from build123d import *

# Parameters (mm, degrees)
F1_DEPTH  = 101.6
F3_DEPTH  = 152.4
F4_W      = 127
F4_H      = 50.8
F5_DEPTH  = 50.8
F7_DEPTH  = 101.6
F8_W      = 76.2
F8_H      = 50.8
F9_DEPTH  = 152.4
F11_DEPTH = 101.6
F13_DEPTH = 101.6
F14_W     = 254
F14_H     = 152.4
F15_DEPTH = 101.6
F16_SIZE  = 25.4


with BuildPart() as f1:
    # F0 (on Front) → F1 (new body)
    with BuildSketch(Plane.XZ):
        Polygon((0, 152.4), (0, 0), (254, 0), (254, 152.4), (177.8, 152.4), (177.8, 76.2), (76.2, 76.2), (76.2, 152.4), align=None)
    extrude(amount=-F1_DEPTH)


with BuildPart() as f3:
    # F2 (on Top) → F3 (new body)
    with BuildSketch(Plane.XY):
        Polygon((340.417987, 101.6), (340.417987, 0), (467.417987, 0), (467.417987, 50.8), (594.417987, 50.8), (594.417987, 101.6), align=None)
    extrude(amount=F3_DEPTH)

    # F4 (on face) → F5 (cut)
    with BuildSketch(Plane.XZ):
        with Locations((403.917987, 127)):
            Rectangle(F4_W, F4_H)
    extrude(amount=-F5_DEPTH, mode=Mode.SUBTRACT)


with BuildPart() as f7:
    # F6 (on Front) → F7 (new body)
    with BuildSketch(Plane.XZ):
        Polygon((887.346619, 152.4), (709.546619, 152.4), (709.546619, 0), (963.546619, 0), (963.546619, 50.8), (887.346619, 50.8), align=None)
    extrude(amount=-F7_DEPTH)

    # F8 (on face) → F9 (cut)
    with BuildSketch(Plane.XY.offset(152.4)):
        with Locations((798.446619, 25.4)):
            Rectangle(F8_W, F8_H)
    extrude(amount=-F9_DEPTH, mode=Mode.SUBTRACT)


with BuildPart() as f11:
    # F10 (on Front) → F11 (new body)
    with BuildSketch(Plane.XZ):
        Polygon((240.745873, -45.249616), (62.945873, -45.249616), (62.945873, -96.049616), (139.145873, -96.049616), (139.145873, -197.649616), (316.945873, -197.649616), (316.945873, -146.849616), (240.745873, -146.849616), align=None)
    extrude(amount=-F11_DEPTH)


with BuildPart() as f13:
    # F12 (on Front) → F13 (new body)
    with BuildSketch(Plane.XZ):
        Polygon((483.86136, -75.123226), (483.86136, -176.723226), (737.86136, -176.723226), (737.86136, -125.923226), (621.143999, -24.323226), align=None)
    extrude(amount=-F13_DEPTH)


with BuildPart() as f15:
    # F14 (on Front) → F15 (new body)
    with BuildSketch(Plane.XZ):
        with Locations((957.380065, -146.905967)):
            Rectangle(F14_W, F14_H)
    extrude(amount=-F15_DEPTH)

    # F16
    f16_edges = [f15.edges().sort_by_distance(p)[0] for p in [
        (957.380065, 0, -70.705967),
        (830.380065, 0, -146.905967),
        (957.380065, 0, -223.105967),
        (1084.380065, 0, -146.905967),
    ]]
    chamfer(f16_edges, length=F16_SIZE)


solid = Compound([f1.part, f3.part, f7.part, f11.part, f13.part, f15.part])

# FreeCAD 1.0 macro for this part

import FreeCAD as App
import Part
import Sketcher

V = App.Vector
Q = App.Units.Quantity


def edges_at(feature, points):
    """Names of the edges that pass closest to the given points."""
    edges = feature.Shape.Edges
    near = lambda p: min(range(len(edges)), key=lambda i: edges[i].distToShape(Part.Vertex(*p))[0])
    return sorted({f"Edge{near(p) + 1}" for p in points})

doc = App.newDocument("Part")
body = doc.addObject("PartDesign::Body", "Body")

sketch1 = body.newObject("Sketcher::SketchObject", "Sketch")
sketch1.AttachmentSupport = (doc.getObject("XZ_Plane"), [""])
sketch1.MapMode = "FlatFace"
sketch1.addGeometry([
    Part.LineSegment(V(0, 152.4, 0), V(0, 0, 0)),
    Part.LineSegment(V(0, 0, 0), V(254, 0, 0)),
    Part.LineSegment(V(254, 0, 0), V(254, 152.4, 0)),
    Part.LineSegment(V(254, 152.4, 0), V(177.8, 152.4, 0)),
    Part.LineSegment(V(177.8, 152.4, 0), V(177.8, 76.2, 0)),
    Part.LineSegment(V(177.8, 76.2, 0), V(76.2, 76.2, 0)),
    Part.LineSegment(V(76.2, 76.2, 0), V(76.2, 152.4, 0)),
    Part.LineSegment(V(76.2, 152.4, 0), V(0, 152.4, 0)),
], False)
sketch1.addConstraint([
    Sketcher.Constraint("Coincident", 0, 2, 1, 1),
    Sketcher.Constraint("Coincident", 1, 2, 2, 1),
    Sketcher.Constraint("Coincident", 2, 2, 3, 1),
    Sketcher.Constraint("Coincident", 3, 2, 4, 1),
    Sketcher.Constraint("Coincident", 4, 2, 5, 1),
    Sketcher.Constraint("Coincident", 5, 2, 6, 1),
    Sketcher.Constraint("Coincident", 6, 2, 7, 1),
    Sketcher.Constraint("Coincident", 7, 2, 0, 1),
    Sketcher.Constraint("Vertical", 0),
    Sketcher.Constraint("Horizontal", 1),
    Sketcher.Constraint("Vertical", 2),
    Sketcher.Constraint("Horizontal", 3),
    Sketcher.Constraint("Vertical", 4),
    Sketcher.Constraint("Horizontal", 5),
    Sketcher.Constraint("Vertical", 6),
    Sketcher.Constraint("Horizontal", 7),
    Sketcher.Constraint("Coincident", 0, 2, -1, 1),
    Sketcher.Constraint("Horizontal", 3, 2, 6, 2),
    Sketcher.Constraint("Equal", 3, 7),
    Sketcher.Constraint("Equal", 7, 4),
    Sketcher.Constraint("DistanceX", 1, 1, 1, 2, Q("10 in")),
    Sketcher.Constraint("DistanceX", 3, 2, 3, 1, Q("3 in")),
    Sketcher.Constraint("DistanceY", 0, 2, 0, 1, Q("6 in")),
])
pad1 = body.newObject("PartDesign::Pad", "Pad")
pad1.Profile = sketch1
pad1.Length = Q("4 in")
pad1.Reversed = True
body2 = doc.addObject("PartDesign::Body", "Body001")

sketch2 = body2.newObject("Sketcher::SketchObject", "Sketch001")
sketch2.AttachmentSupport = (doc.getObject("XY_Plane001"), [""])
sketch2.MapMode = "FlatFace"
sketch2.addGeometry([
    Part.LineSegment(V(340.417987, 101.6, 0), V(340.417987, 0, 0)),
    Part.LineSegment(V(340.417987, 0, 0), V(467.417987, 0, 0)),
    Part.LineSegment(V(467.417987, 0, 0), V(467.417987, 50.8, 0)),
    Part.LineSegment(V(467.417987, 50.8, 0), V(594.417987, 50.8, 0)),
    Part.LineSegment(V(594.417987, 50.8, 0), V(594.417987, 101.6, 0)),
    Part.LineSegment(V(594.417987, 101.6, 0), V(340.417987, 101.6, 0)),
], False)
sketch2.addConstraint([
    Sketcher.Constraint("Coincident", 0, 2, 1, 1),
    Sketcher.Constraint("Coincident", 1, 2, 2, 1),
    Sketcher.Constraint("Coincident", 2, 2, 3, 1),
    Sketcher.Constraint("Coincident", 3, 2, 4, 1),
    Sketcher.Constraint("Coincident", 4, 2, 5, 1),
    Sketcher.Constraint("Coincident", 5, 2, 0, 1),
    Sketcher.Constraint("Vertical", 0),
    Sketcher.Constraint("Horizontal", 1),
    Sketcher.Constraint("Vertical", 2),
    Sketcher.Constraint("Horizontal", 3),
    Sketcher.Constraint("Vertical", 4),
    Sketcher.Constraint("Horizontal", 5),
    Sketcher.Constraint("PointOnObject", 0, 2, -1),
    Sketcher.Constraint("Equal", 1, 3),
    Sketcher.Constraint("Equal", 2, 4),
    Sketcher.Constraint("DistanceX", 1, 1, 1, 2, Q("5 in")),
    Sketcher.Constraint("DistanceY", 0, 2, 0, 1, Q("4 in")),
    Sketcher.Constraint("DistanceX", -1, 1, 0, 2, Q("340.417987 mm")),
])
pad2 = body2.newObject("PartDesign::Pad", "Pad001")
pad2.Profile = sketch2
pad2.Length = Q("6 in")

sketch3 = body2.newObject("Sketcher::SketchObject", "Sketch002")
sketch3.AttachmentSupport = (doc.getObject("XZ_Plane001"), [""])
sketch3.MapMode = "FlatFace"
sketch3.addGeometry([
    Part.LineSegment(V(340.417987, 152.4, 0), V(340.417987, 101.6, 0)),
    Part.LineSegment(V(340.417987, 101.6, 0), V(467.417987, 101.6, 0)),
    Part.LineSegment(V(467.417987, 101.6, 0), V(467.417987, 152.4, 0)),
    Part.LineSegment(V(467.417987, 152.4, 0), V(340.417987, 152.4, 0)),
], False)
sketch3.addConstraint([
    Sketcher.Constraint("Coincident", 0, 2, 1, 1),
    Sketcher.Constraint("Coincident", 1, 2, 2, 1),
    Sketcher.Constraint("Coincident", 2, 2, 3, 1),
    Sketcher.Constraint("Coincident", 3, 2, 0, 1),
    Sketcher.Constraint("Vertical", 0),
    Sketcher.Constraint("Horizontal", 1),
    Sketcher.Constraint("Vertical", 2),
    Sketcher.Constraint("Horizontal", 3),
    Sketcher.Constraint("DistanceX", 1, 1, 1, 2, Q("5 in")),
    Sketcher.Constraint("DistanceY", 0, 2, 0, 1, Q("2 in")),
    Sketcher.Constraint("DistanceY", -1, 1, 0, 2, Q("4 in")),
    Sketcher.Constraint("DistanceX", -1, 1, 0, 2, Q("340.417987 mm")),
])
pocket1 = body2.newObject("PartDesign::Pocket", "Pocket")
pocket1.Profile = sketch3
pocket1.Length = Q("2 in")
body3 = doc.addObject("PartDesign::Body", "Body002")

sketch4 = body3.newObject("Sketcher::SketchObject", "Sketch003")
sketch4.AttachmentSupport = (doc.getObject("XZ_Plane002"), [""])
sketch4.MapMode = "FlatFace"
sketch4.addGeometry([
    Part.LineSegment(V(887.346619, 152.4, 0), V(709.546619, 152.4, 0)),
    Part.LineSegment(V(709.546619, 152.4, 0), V(709.546619, 0, 0)),
    Part.LineSegment(V(709.546619, 0, 0), V(963.546619, 0, 0)),
    Part.LineSegment(V(963.546619, 0, 0), V(963.546619, 50.8, 0)),
    Part.LineSegment(V(963.546619, 50.8, 0), V(887.346619, 50.8, 0)),
    Part.LineSegment(V(887.346619, 50.8, 0), V(887.346619, 152.4, 0)),
], False)
sketch4.addConstraint([
    Sketcher.Constraint("Coincident", 0, 2, 1, 1),
    Sketcher.Constraint("Coincident", 1, 2, 2, 1),
    Sketcher.Constraint("Coincident", 2, 2, 3, 1),
    Sketcher.Constraint("Coincident", 3, 2, 4, 1),
    Sketcher.Constraint("Coincident", 4, 2, 5, 1),
    Sketcher.Constraint("Coincident", 5, 2, 0, 1),
    Sketcher.Constraint("Horizontal", 0),
    Sketcher.Constraint("Vertical", 1),
    Sketcher.Constraint("Horizontal", 2),
    Sketcher.Constraint("Vertical", 3),
    Sketcher.Constraint("Horizontal", 4),
    Sketcher.Constraint("Vertical", 5),
    Sketcher.Constraint("PointOnObject", 1, 2, -1),
    Sketcher.Constraint("DistanceX", 0, 2, 0, 1, Q("7 in")),
    Sketcher.Constraint("DistanceX", 2, 1, 2, 2, Q("10 in")),
    Sketcher.Constraint("DistanceY", 1, 2, 1, 1, Q("6 in")),
    Sketcher.Constraint("DistanceY", 3, 1, 3, 2, Q("2 in")),
    Sketcher.Constraint("DistanceX", -1, 1, 0, 2, Q("709.546619 mm")),
])
pad3 = body3.newObject("PartDesign::Pad", "Pad002")
pad3.Profile = sketch4
pad3.Length = Q("4 in")
pad3.Reversed = True

sketch5 = body3.newObject("Sketcher::SketchObject", "Sketch004")
sketch5.AttachmentSupport = (doc.getObject("XY_Plane002"), [""])
sketch5.MapMode = "FlatFace"
sketch5.AttachmentOffset = App.Placement(V(0, 0, 6 * 25.4), App.Rotation())
sketch5.addGeometry([
    Part.LineSegment(V(760.346619, 50.8, 0), V(760.346619, 0, 0)),
    Part.LineSegment(V(760.346619, 0, 0), V(836.546619, 0, 0)),
    Part.LineSegment(V(836.546619, 0, 0), V(836.546619, 50.8, 0)),
    Part.LineSegment(V(836.546619, 50.8, 0), V(760.346619, 50.8, 0)),
], False)
sketch5.addConstraint([
    Sketcher.Constraint("Coincident", 0, 2, 1, 1),
    Sketcher.Constraint("Coincident", 1, 2, 2, 1),
    Sketcher.Constraint("Coincident", 2, 2, 3, 1),
    Sketcher.Constraint("Coincident", 3, 2, 0, 1),
    Sketcher.Constraint("Vertical", 0),
    Sketcher.Constraint("Horizontal", 1),
    Sketcher.Constraint("Vertical", 2),
    Sketcher.Constraint("Horizontal", 3),
    Sketcher.Constraint("PointOnObject", 0, 2, -1),
    Sketcher.Constraint("DistanceX", 1, 1, 1, 2, Q("3 in")),
    Sketcher.Constraint("DistanceY", 0, 2, 0, 1, Q("2 in")),
    Sketcher.Constraint("DistanceX", -1, 1, 0, 2, Q("760.346619 mm")),
])
pocket2 = body3.newObject("PartDesign::Pocket", "Pocket001")
pocket2.Profile = sketch5
pocket2.Length = Q("6 in")
body4 = doc.addObject("PartDesign::Body", "Body003")

sketch6 = body4.newObject("Sketcher::SketchObject", "Sketch005")
sketch6.AttachmentSupport = (doc.getObject("XZ_Plane003"), [""])
sketch6.MapMode = "FlatFace"
sketch6.addGeometry([
    Part.LineSegment(V(240.745873, -45.249616, 0), V(62.945873, -45.249616, 0)),
    Part.LineSegment(V(62.945873, -45.249616, 0), V(62.945873, -96.049616, 0)),
    Part.LineSegment(V(62.945873, -96.049616, 0), V(139.145873, -96.049616, 0)),
    Part.LineSegment(V(139.145873, -96.049616, 0), V(139.145873, -197.649616, 0)),
    Part.LineSegment(V(139.145873, -197.649616, 0), V(316.945873, -197.649616, 0)),
    Part.LineSegment(V(316.945873, -197.649616, 0), V(316.945873, -146.849616, 0)),
    Part.LineSegment(V(316.945873, -146.849616, 0), V(240.745873, -146.849616, 0)),
    Part.LineSegment(V(240.745873, -146.849616, 0), V(240.745873, -45.249616, 0)),
], False)
sketch6.addConstraint([
    Sketcher.Constraint("Coincident", 0, 2, 1, 1),
    Sketcher.Constraint("Coincident", 1, 2, 2, 1),
    Sketcher.Constraint("Coincident", 2, 2, 3, 1),
    Sketcher.Constraint("Coincident", 3, 2, 4, 1),
    Sketcher.Constraint("Coincident", 4, 2, 5, 1),
    Sketcher.Constraint("Coincident", 5, 2, 6, 1),
    Sketcher.Constraint("Coincident", 6, 2, 7, 1),
    Sketcher.Constraint("Coincident", 7, 2, 0, 1),
    Sketcher.Constraint("Horizontal", 0),
    Sketcher.Constraint("Vertical", 1),
    Sketcher.Constraint("Horizontal", 2),
    Sketcher.Constraint("Vertical", 3),
    Sketcher.Constraint("Horizontal", 4),
    Sketcher.Constraint("Vertical", 5),
    Sketcher.Constraint("Horizontal", 6),
    Sketcher.Constraint("Vertical", 7),
    Sketcher.Constraint("Equal", 0, 4),
    Sketcher.Constraint("Equal", 1, 5),
    Sketcher.Constraint("DistanceX", 0, 2, 0, 1, Q("7 in")),
    Sketcher.Constraint("DistanceX", 2, 1, 2, 2, Q("3 in")),
    Sketcher.Constraint("DistanceY", 1, 2, 1, 1, Q("2 in")),
    Sketcher.Constraint("DistanceY", 3, 2, 3, 1, Q("4 in")),
    Sketcher.Constraint("DistanceX", -1, 1, 0, 2, Q("62.945873 mm")),
    Sketcher.Constraint("DistanceY", 0, 2, -1, 1, Q("45.249616 mm")),
])
pad4 = body4.newObject("PartDesign::Pad", "Pad003")
pad4.Profile = sketch6
pad4.Length = Q("4 in")
pad4.Reversed = True
body5 = doc.addObject("PartDesign::Body", "Body004")

sketch7 = body5.newObject("Sketcher::SketchObject", "Sketch006")
sketch7.AttachmentSupport = (doc.getObject("XZ_Plane004"), [""])
sketch7.MapMode = "FlatFace"
sketch7.addGeometry([
    Part.LineSegment(V(483.86136, -75.123226, 0), V(483.86136, -176.723226, 0)),
    Part.LineSegment(V(483.86136, -176.723226, 0), V(737.86136, -176.723226, 0)),
    Part.LineSegment(V(737.86136, -176.723226, 0), V(737.86136, -125.923226, 0)),
    Part.LineSegment(V(737.86136, -125.923226, 0), V(621.143999, -24.323226, 0)),
    Part.LineSegment(V(621.143999, -24.323226, 0), V(483.86136, -75.123226, 0)),
], False)
sketch7.addConstraint([
    Sketcher.Constraint("Coincident", 0, 2, 1, 1),
    Sketcher.Constraint("Coincident", 1, 2, 2, 1),
    Sketcher.Constraint("Coincident", 2, 2, 3, 1),
    Sketcher.Constraint("Coincident", 3, 2, 4, 1),
    Sketcher.Constraint("Coincident", 4, 2, 0, 1),
    Sketcher.Constraint("Vertical", 0),
    Sketcher.Constraint("Horizontal", 1),
    Sketcher.Constraint("Vertical", 2),
    Sketcher.Constraint("DistanceX", 1, 1, 1, 2, Q("10 in")),
    Sketcher.Constraint("DistanceY", 0, 2, 0, 1, Q("4 in")),
    Sketcher.Constraint("DistanceY", 2, 1, 2, 2, Q("2 in")),
    Sketcher.Constraint("DistanceY", 2, 2, 3, 2, Q("4 in")),
    Sketcher.Constraint("Distance", 4, Q("5.763 in")),
    Sketcher.Constraint("DistanceX", -1, 1, 3, 2, Q("621.143999 mm")),
    Sketcher.Constraint("DistanceY", 0, 2, -1, 1, Q("176.723226 mm")),
])
pad5 = body5.newObject("PartDesign::Pad", "Pad004")
pad5.Profile = sketch7
pad5.Length = Q("4 in")
pad5.Reversed = True
body6 = doc.addObject("PartDesign::Body", "Body005")

sketch8 = body6.newObject("Sketcher::SketchObject", "Sketch007")
sketch8.AttachmentSupport = (doc.getObject("XZ_Plane005"), [""])
sketch8.MapMode = "FlatFace"
sketch8.addGeometry([
    Part.LineSegment(V(830.380065, -70.705967, 0), V(830.380065, -223.105967, 0)),
    Part.LineSegment(V(830.380065, -223.105967, 0), V(1084.380065, -223.105967, 0)),
    Part.LineSegment(V(1084.380065, -223.105967, 0), V(1084.380065, -70.705967, 0)),
    Part.LineSegment(V(1084.380065, -70.705967, 0), V(830.380065, -70.705967, 0)),
], False)
sketch8.addConstraint([
    Sketcher.Constraint("Coincident", 0, 2, 1, 1),
    Sketcher.Constraint("Coincident", 1, 2, 2, 1),
    Sketcher.Constraint("Coincident", 2, 2, 3, 1),
    Sketcher.Constraint("Coincident", 3, 2, 0, 1),
    Sketcher.Constraint("Vertical", 0),
    Sketcher.Constraint("Horizontal", 1),
    Sketcher.Constraint("Vertical", 2),
    Sketcher.Constraint("Horizontal", 3),
    Sketcher.Constraint("DistanceX", 1, 1, 1, 2, Q("10 in")),
    Sketcher.Constraint("DistanceY", 0, 2, 0, 1, Q("6 in")),
    Sketcher.Constraint("DistanceX", -1, 1, 0, 2, Q("830.380065 mm")),
    Sketcher.Constraint("DistanceY", 0, 2, -1, 1, Q("223.105967 mm")),
])
pad6 = body6.newObject("PartDesign::Pad", "Pad005")
pad6.Profile = sketch8
pad6.Length = Q("4 in")
pad6.Reversed = True
doc.recompute()

chamfer = body6.newObject("PartDesign::Chamfer", "Chamfer")
chamfer.Base = (pad6, edges_at(pad6, [
    (957.38, 0, -70.706),
    (830.38, 0, -146.906),
    (957.38, 0, -223.106),
    (1084.38, 0, -146.906),
]))
chamfer.Size = Q("1 in")

doc.recompute()
